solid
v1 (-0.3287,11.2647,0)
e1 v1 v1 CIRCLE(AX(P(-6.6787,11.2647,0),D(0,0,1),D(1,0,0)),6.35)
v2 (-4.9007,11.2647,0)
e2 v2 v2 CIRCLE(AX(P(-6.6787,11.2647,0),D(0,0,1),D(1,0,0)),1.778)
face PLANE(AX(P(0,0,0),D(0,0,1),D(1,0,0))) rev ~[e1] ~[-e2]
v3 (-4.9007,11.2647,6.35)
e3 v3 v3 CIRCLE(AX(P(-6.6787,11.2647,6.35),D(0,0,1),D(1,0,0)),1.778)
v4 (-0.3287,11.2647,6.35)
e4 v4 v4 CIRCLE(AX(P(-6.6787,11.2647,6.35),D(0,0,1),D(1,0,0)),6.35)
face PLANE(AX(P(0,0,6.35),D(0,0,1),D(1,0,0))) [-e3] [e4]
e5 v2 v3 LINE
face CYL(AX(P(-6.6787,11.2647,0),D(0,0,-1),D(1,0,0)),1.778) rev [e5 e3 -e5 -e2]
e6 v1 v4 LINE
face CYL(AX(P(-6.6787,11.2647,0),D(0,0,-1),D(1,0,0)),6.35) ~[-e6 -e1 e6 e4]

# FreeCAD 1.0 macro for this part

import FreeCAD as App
import Part
import Sketcher
from FreeCAD import Vector
Q = App.Units.Quantity

doc = App.newDocument("Part")
body = doc.addObject("PartDesign::Body", "Body")

sketch1 = body.newObject("Sketcher::SketchObject", "Sketch")
sketch1.AttachmentSupport = (doc.getObject("XY_Plane"), [""])
sketch1.MapMode = "FlatFace"
sketch1.addGeometry(Part.Circle(Vector(-6.7, 11.3, 0), Vector(0, 0, 1), 6.3), False)
sketch1.addGeometry(Part.Circle(Vector(-6.7, 11.3, 0), Vector(0, 0, 1), 1.8), False)
sketch1.addConstraint(Sketcher.Constraint("Coincident", 1, 3, 0, 3))
sketch1.addConstraint(Sketcher.Constraint("Diameter", 0, Q("0.5 in")))
sketch1.addConstraint(Sketcher.Constraint("Diameter", 1, Q("0.14 in")))
sketch1.addConstraint(Sketcher.Constraint("DistanceY", -1, 1, 0, 3, Q("0.4435 in")))
sketch1.addConstraint(Sketcher.Constraint("DistanceX", 0, 3, -1, 1, Q("6.6787 mm")))
pad1 = body.newObject("PartDesign::Pad", "Pad")
pad1.Profile = sketch1
pad1.Length = Q("0.25 in")

doc.recompute()
